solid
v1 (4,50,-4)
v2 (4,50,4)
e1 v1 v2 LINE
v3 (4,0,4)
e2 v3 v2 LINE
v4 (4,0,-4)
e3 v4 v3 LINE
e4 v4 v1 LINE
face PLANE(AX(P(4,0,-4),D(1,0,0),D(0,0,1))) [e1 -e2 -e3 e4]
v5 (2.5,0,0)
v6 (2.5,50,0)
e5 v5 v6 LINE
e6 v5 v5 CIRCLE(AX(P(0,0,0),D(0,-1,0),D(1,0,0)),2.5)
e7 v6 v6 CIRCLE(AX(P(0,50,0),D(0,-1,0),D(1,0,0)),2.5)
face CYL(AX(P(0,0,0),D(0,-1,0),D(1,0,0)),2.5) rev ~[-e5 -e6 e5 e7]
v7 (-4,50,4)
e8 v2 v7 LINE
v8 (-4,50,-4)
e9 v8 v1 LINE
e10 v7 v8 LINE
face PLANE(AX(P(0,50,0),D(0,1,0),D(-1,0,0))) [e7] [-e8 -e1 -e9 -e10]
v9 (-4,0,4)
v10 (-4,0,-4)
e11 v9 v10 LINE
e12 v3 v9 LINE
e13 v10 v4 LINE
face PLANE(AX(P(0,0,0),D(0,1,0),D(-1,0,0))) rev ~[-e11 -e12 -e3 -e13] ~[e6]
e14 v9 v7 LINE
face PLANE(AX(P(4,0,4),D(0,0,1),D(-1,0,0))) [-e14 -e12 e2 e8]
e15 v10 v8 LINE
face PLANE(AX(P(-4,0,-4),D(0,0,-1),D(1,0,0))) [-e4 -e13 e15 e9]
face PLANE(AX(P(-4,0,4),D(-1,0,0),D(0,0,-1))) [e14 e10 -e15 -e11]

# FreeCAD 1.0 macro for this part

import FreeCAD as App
import Part
import Sketcher
from FreeCAD import Vector
Q = App.Units.Quantity

doc = App.newDocument("Part")
body = doc.addObject("PartDesign::Body", "Body")

sketch1 = doc.addObject("Sketcher::SketchObject", "Sketch")
body.addObject(sketch1)
sketch1.AttachmentSupport = (doc.XZ_Plane, [""])
sketch1.MapMode = "FlatFace"
sketch1.addGeometry([
    Part.LineSegment(Vector(-4, -4, 0), Vector(-4, 4, 0)),
    Part.LineSegment(Vector(-4, 4, 0), Vector(4, 4, 0)),
    Part.LineSegment(Vector(4, 4, 0), Vector(4, -4, 0)),
    Part.LineSegment(Vector(4, -4, 0), Vector(-4, -4, 0)),
], False)
sketch1.addConstraint([
    Sketcher.Constraint("Coincident", 0, 2, 1, 1),
    Sketcher.Constraint("Coincident", 1, 2, 2, 1),
    Sketcher.Constraint("Coincident", 2, 2, 3, 1),
    Sketcher.Constraint("Coincident", 3, 2, 0, 1),
    Sketcher.Constraint("Vertical", 0),
    Sketcher.Constraint("Horizontal", 1),
    Sketcher.Constraint("Vertical", 2),
    Sketcher.Constraint("Horizontal", 3),
    Sketcher.Constraint("Symmetric", 0, 2, 2, 2, -1, 1),
    Sketcher.Constraint("Equal", 3, 0),
    Sketcher.Constraint("DistanceX", 1, 1, 1, 2, Q("8 mm")),
])
pad1 = doc.addObject("PartDesign::Pad", "Pad")
body.addObject(pad1)
pad1.Profile = sketch1
pad1.Length = 50
pad1.Reversed = True

sketch2 = doc.addObject("Sketcher::SketchObject", "Sketch001")
body.addObject(sketch2)
sketch2.AttachmentSupport = (doc.XZ_Plane, [""])
sketch2.MapMode = "FlatFace"
sketch2.addGeometry(Part.Circle(Vector(0, 0, 0), Vector(0, 0, 1), 2.5), False)
sketch2.addConstraint([
    Sketcher.Constraint("Coincident", 0, 3, -1, 1),
    Sketcher.Constraint("Diameter", 0, Q("5 mm")),
])
pocket1 = doc.addObject("PartDesign::Pocket", "Pocket")
body.addObject(pocket1)
pocket1.Profile = sketch2
pocket1.Length = 50

doc.recompute()
